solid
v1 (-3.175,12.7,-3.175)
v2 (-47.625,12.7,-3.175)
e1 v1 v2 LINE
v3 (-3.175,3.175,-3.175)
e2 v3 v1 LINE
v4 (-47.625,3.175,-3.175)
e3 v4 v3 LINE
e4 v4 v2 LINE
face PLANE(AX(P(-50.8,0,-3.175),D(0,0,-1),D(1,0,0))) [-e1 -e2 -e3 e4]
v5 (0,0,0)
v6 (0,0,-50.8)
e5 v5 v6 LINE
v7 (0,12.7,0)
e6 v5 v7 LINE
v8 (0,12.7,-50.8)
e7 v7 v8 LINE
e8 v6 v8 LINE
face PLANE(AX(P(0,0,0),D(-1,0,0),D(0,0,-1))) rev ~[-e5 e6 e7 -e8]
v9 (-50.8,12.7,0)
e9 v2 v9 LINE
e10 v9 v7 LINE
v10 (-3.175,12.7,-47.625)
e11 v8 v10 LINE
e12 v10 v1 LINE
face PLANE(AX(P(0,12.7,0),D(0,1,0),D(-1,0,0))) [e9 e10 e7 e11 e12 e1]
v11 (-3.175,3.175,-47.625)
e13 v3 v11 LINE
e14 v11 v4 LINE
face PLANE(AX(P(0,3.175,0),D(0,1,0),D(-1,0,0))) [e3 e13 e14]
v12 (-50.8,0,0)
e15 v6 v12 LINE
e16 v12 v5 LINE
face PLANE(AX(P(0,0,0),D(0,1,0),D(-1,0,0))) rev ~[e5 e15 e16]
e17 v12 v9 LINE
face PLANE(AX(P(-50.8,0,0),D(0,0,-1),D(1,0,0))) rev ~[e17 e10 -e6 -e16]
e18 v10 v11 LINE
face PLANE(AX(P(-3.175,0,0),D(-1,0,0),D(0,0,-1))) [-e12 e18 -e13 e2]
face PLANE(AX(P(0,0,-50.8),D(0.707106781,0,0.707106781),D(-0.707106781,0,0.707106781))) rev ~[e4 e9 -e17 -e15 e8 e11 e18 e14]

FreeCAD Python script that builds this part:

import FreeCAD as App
import Part
import Sketcher

V = App.Vector
Q = App.Units.Quantity


def faces_at(feature, points):
    """Names of the faces that lie closest to the given points."""
    faces = feature.Shape.Faces
    near = lambda p: min(range(len(faces)), key=lambda i: faces[i].distToShape(Part.Vertex(*p))[0])
    return sorted({f"Face{near(p) + 1}" for p in points})


def add_polygon(sketch, points):
    """Adds a closed chain of lines whose ends are joined by coincident constraints."""
    first, n = sketch.GeometryCount, len(points)
    for a, b in zip(points, points[1:] + points[:1]):
        sketch.addGeometry(Part.LineSegment(App.Vector(*a, 0), App.Vector(*b, 0)), False)
    for i in range(n):
        sketch.addConstraint(Sketcher.Constraint("Coincident", first + i, 2, first + (i + 1) % n, 1))

doc = App.newDocument("Part")
body = doc.addObject("PartDesign::Body", "Body")

sketch1 = body.newObject("Sketcher::SketchObject", "Sketch")
sketch1.AttachmentSupport = (doc.getObject("XZ_Plane"), [""])
sketch1.MapMode = "FlatFace"
add_polygon(sketch1, [(-50.8, 0), (0, 0), (0, -50.8)])
sketch1.addConstraint([
    Sketcher.Constraint("Horizontal", 0),
    Sketcher.Constraint("Vertical", 1),
    Sketcher.Constraint("Coincident", 0, 2, -1, 1),
    Sketcher.Constraint("Equal", 0, 1),
    Sketcher.Constraint("DistanceX", 0, 1, 0, 2, Q("2 in")),
])
pad1 = body.newObject("PartDesign::Pad", "Pad")
pad1.Profile = sketch1
pad1.Length = Q("0.5 in")
pad1.Reversed = True
doc.recompute()

thickness = body.newObject("PartDesign::Thickness", "Thickness")
thickness.Base = (pad1, faces_at(pad1, [(-16.933, 8.467, -33.867), (-16.933, 12.7, -16.933)]))
thickness.Value = Q("0.125 in")
thickness.Reversed = True
thickness.Join = "Intersection"

doc.recompute()
